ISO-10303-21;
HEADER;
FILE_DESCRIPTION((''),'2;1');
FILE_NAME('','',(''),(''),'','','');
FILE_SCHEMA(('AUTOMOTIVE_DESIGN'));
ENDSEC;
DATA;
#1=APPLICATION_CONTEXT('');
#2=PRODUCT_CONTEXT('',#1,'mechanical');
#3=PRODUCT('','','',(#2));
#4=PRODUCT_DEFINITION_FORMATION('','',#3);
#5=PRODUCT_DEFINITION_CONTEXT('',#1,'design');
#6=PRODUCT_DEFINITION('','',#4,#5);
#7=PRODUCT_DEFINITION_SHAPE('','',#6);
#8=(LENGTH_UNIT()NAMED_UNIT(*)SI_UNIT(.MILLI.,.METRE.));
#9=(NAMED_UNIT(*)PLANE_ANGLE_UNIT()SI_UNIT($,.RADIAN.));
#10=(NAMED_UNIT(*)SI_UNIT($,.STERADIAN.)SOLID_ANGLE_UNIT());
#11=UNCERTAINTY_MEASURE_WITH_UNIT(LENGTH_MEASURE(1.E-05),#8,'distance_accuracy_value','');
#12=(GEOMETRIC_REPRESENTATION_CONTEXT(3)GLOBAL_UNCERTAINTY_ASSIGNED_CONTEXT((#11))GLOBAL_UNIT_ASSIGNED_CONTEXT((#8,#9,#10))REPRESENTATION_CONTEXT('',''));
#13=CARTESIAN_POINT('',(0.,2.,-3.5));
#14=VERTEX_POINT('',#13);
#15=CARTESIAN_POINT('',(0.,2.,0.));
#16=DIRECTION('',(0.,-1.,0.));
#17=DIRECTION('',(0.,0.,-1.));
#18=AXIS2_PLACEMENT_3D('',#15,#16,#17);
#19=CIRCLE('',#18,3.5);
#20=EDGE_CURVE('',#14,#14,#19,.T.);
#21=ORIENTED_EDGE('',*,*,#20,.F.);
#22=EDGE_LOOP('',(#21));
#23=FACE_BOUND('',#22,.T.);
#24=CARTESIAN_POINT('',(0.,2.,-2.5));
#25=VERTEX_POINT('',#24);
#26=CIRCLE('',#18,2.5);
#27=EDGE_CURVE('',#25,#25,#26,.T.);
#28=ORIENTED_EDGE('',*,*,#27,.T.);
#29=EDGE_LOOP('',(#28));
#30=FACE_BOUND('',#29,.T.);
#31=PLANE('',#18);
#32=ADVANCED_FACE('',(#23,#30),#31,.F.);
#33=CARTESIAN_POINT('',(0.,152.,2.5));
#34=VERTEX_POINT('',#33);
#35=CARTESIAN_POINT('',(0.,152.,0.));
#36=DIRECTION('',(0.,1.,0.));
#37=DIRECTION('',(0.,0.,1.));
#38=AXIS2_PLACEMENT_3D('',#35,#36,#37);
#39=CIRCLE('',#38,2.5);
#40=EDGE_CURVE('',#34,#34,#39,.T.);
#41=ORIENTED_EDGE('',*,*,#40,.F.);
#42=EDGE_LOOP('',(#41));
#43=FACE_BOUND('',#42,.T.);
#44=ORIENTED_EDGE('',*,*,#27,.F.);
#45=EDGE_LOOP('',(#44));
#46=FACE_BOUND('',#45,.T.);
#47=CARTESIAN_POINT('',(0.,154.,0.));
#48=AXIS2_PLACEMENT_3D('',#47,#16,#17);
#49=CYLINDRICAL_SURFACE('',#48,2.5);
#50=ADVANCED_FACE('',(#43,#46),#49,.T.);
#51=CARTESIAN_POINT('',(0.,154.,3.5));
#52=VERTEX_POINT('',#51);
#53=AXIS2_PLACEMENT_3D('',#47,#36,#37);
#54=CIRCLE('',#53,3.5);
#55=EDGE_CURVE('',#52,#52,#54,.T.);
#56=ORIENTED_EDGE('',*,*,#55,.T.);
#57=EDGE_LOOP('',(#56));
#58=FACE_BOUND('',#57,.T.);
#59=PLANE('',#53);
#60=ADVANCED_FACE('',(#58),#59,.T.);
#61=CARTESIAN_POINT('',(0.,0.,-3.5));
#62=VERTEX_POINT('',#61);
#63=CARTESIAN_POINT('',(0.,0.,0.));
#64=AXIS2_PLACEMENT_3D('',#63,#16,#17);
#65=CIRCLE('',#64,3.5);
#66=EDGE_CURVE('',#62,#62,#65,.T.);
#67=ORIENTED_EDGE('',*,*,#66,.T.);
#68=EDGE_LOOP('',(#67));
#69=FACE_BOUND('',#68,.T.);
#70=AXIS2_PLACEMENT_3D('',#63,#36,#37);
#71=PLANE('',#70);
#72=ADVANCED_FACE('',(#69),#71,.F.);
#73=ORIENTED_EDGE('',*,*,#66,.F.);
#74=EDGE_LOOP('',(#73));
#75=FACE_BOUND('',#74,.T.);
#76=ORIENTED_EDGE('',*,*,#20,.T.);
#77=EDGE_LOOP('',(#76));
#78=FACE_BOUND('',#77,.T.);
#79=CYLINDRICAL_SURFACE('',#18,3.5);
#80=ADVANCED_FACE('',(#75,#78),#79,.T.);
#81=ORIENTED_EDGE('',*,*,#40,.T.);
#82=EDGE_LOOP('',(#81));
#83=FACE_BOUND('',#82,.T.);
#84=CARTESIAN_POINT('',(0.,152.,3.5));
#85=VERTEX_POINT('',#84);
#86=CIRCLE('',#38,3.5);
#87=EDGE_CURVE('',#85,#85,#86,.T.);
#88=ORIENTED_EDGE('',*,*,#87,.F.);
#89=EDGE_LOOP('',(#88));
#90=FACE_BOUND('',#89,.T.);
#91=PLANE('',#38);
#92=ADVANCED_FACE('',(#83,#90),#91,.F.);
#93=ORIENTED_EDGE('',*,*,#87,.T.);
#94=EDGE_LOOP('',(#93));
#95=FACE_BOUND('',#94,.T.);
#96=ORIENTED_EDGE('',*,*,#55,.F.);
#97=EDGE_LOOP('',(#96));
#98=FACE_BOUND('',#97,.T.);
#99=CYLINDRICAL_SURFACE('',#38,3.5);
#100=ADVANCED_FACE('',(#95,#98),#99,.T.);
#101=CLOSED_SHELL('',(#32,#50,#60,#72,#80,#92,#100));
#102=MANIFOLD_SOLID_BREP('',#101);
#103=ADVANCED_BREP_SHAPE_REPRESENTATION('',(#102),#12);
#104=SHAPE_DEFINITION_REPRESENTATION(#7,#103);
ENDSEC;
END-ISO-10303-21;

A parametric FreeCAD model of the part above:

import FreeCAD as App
import Part
import Sketcher

V = App.Vector

doc = App.newDocument("Part")
body = doc.addObject("PartDesign::Body", "Body")

sketch1 = body.newObject("Sketcher::SketchObject", "Sketch")
sketch1.AttachmentSupport = (doc.getObject("XZ_Plane"), [""])
sketch1.MapMode = "FlatFace"
sketch1.addGeometry(Part.Circle(V(0, 0, 0), V(0, 0, 1), 2.5), False)
sketch1.addConstraint([
    Sketcher.Constraint("Coincident", 0, 3, -1, 1),
    Sketcher.Constraint("Diameter", 0, 5.0),
])
pad1 = body.newObject("PartDesign::Pad", "Pad")
pad1.Profile = sketch1
pad1.Length = 154
pad1.Reversed = True

sketch2 = body.newObject("Sketcher::SketchObject", "Sketch001")
sketch2.AttachmentSupport = (doc.getObject("XZ_Plane"), [""])
sketch2.MapMode = "FlatFace"
sketch2.addGeometry(Part.Circle(V(0, 0, 0), V(0, 0, 1), 3.5), False)
sketch2.addConstraint([
    Sketcher.Constraint("Coincident", 0, 3, -1, 1),
    Sketcher.Constraint("Diameter", 0, 7.0),
])
pad2 = body.newObject("PartDesign::Pad", "Pad001")
pad2.Profile = sketch2
pad2.Length = 2
pad2.Reversed = True

sketch3 = body.newObject("Sketcher::SketchObject", "Sketch002")
sketch3.AttachmentSupport = (doc.getObject("XZ_Plane"), [""])
sketch3.MapMode = "FlatFace"
sketch3.AttachmentOffset = App.Placement(V(0, 0, -152), App.Rotation())
sketch3.addGeometry(Part.Circle(V(0, 0, 0), V(0, 0, 1), 3.5), False)
sketch3.addConstraint([
    Sketcher.Constraint("Coincident", 0, 3, -1, 1),
    Sketcher.Constraint("Diameter", 0, 7.0),
])
pad3 = body.newObject("PartDesign::Pad", "Pad002")
pad3.Profile = sketch3
pad3.Length = 2
pad3.Reversed = True

doc.recompute()
